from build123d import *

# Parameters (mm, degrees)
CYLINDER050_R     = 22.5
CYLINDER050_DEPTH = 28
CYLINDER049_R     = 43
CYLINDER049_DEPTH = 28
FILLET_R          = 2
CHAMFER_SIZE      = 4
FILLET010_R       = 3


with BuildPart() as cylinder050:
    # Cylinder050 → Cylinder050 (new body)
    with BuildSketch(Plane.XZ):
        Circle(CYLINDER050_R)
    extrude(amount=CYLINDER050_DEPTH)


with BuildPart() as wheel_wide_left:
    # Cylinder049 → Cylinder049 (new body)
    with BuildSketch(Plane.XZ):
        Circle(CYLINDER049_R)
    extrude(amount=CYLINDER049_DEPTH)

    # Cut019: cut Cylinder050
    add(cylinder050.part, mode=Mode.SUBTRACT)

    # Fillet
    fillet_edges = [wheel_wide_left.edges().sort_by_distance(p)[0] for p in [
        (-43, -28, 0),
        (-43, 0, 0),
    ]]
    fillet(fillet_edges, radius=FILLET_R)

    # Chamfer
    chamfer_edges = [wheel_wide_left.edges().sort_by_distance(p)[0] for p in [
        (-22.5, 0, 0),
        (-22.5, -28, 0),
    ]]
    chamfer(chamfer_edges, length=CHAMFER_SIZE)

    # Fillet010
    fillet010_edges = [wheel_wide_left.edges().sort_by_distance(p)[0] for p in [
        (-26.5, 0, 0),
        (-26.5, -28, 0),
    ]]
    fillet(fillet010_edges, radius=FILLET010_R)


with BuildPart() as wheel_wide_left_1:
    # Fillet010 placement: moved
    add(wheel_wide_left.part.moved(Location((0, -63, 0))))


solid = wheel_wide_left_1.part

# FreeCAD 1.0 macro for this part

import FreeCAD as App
import Part
import Sketcher
from FreeCAD import Vector
Q = App.Units.Quantity


def edges_at(feature, points):
    """Names of the edges that pass closest to the given points."""
    edges = feature.Shape.Edges
    near = lambda p: min(range(len(edges)), key=lambda i: edges[i].distToShape(Part.Vertex(*p))[0])
    return sorted({f"Edge{near(p) + 1}" for p in points})

doc = App.newDocument("Part")
body = doc.addObject("PartDesign::Body", "Body")

# Sketch on XZ plane
sketch1 = body.newObject("Sketcher::SketchObject", "Sketch")
sketch1.AttachmentSupport = (doc.getObject("XZ_Plane"), [""])
sketch1.MapMode = "FlatFace"
sketch1.addGeometry(Part.Circle(Vector(0, 0, 0), Vector(0, 0, 1), 22.5), False)
sketch1.addConstraint([
    Sketcher.Constraint("Coincident", 0, 3, -1, 1),
    Sketcher.Constraint("Diameter", 0, Q("45 mm")),
])
pad1 = body.newObject("PartDesign::Pad", "Pad")
pad1.Profile = sketch1
pad1.Length = 28
body2 = doc.addObject("PartDesign::Body", "Body001")

# Sketch on XZ plane
sketch2 = body2.newObject("Sketcher::SketchObject", "Sketch001")
sketch2.AttachmentSupport = (doc.getObject("XZ_Plane001"), [""])
sketch2.MapMode = "FlatFace"
sketch2.addGeometry(Part.Circle(Vector(0, 0, 0), Vector(0, 0, 1), 43), False)
sketch2.addConstraint([
    Sketcher.Constraint("Coincident", 0, 3, -1, 1),
    Sketcher.Constraint("Diameter", 0, Q("86 mm")),
])
pad2 = body2.newObject("PartDesign::Pad", "Pad001")
pad2.Profile = sketch2
pad2.Length = 28
doc.recompute()

boolean = body2.newObject("PartDesign::Boolean", "Boolean")
boolean.Type = "Cut"
boolean.addObjects([body])
doc.recompute()

fillet = body2.newObject("PartDesign::Fillet", "Fillet")
fillet.Base = (boolean, edges_at(boolean, [(-43, -28, 0), (-43, 0, 0)]))
fillet.Radius = 2
doc.recompute()

chamfer = body2.newObject("PartDesign::Chamfer", "Chamfer")
chamfer.Base = (fillet, edges_at(fillet, [(-22.5, 0, 0), (-22.5, -28, 0)]))
chamfer.Size = 4
doc.recompute()

fillet2 = body2.newObject("PartDesign::Fillet", "Fillet001")
fillet2.Base = (chamfer, edges_at(chamfer, [(-26.5, 0, 0), (-26.5, -28, 0)]))
fillet2.Radius = 3
body3 = doc.addObject("PartDesign::Body", "Body002")
doc.recompute()

body2.Placement = App.Placement(Vector(0, -63, 0), App.Rotation(Vector(0, 0, 1), 0))
boolean2 = body3.newObject("PartDesign::Boolean", "Boolean001")
boolean2.Type = "Fuse"
boolean2.addObjects([body2])

doc.recompute()
